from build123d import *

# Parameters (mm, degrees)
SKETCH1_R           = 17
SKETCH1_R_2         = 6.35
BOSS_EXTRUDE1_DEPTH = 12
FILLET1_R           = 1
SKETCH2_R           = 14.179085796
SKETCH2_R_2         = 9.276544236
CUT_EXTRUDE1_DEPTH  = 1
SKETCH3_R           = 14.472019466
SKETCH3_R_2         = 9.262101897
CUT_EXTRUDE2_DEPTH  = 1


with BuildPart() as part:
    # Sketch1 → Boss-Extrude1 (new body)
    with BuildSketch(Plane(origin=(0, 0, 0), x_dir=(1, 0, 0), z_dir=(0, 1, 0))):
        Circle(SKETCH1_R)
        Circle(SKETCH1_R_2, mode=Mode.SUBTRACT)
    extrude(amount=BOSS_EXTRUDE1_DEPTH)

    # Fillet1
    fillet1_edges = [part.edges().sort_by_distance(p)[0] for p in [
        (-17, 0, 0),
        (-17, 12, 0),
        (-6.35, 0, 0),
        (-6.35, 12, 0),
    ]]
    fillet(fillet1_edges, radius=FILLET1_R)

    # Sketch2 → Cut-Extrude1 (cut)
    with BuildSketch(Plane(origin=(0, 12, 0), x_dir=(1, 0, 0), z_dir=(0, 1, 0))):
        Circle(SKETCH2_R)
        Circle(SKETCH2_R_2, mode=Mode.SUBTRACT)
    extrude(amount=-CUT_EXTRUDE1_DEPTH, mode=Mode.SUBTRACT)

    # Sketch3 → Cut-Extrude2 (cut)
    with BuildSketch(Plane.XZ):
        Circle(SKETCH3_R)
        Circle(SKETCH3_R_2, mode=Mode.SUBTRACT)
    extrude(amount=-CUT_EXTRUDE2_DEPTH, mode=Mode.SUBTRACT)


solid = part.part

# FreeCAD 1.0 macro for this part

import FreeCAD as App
import Part
import Sketcher
from FreeCAD import Vector


def edges_at(feature, points):
    """Names of the edges that pass closest to the given points."""
    edges = feature.Shape.Edges
    near = lambda p: min(range(len(edges)), key=lambda i: edges[i].distToShape(Part.Vertex(*p))[0])
    return sorted({f"Edge{near(p) + 1}" for p in points})

doc = App.newDocument("Part")
body = doc.addObject("PartDesign::Body", "Body")

# Sketch on XZ plane
sketch1 = body.newObject("Sketcher::SketchObject", "Sketch")
sketch1.AttachmentSupport = (doc.getObject("XZ_Plane"), [""])
sketch1.MapMode = "FlatFace"
sketch1.addGeometry(Part.Circle(Vector(0, 0, 0), Vector(0, 0, 1), 17), False)
sketch1.addGeometry(Part.Circle(Vector(0, 0, 0), Vector(0, 0, 1), 6), False)
sketch1.addConstraint(Sketcher.Constraint("Coincident", 0, 3, -1, 1))
sketch1.addConstraint(Sketcher.Constraint("Coincident", 1, 3, -1, 1))
sketch1.addConstraint(Sketcher.Constraint("Diameter", 0, 34.0))
sketch1.addConstraint(Sketcher.Constraint("Diameter", 1, 12.7))
pad1 = body.newObject("PartDesign::Pad", "Pad")
pad1.Profile = sketch1
pad1.Length = 12
pad1.Reversed = True
doc.recompute()

fillet = body.newObject("PartDesign::Fillet", "Fillet")
fillet.Base = (pad1, edges_at(pad1, [
    (-17, 0, 0),
    (-17, 12, 0),
    (-6.35, 0, 0),
    (-6.35, 12, 0),
]))
fillet.Radius = 1

# Sketch on XZ plane
sketch2 = body.newObject("Sketcher::SketchObject", "Sketch001")
sketch2.AttachmentSupport = (doc.getObject("XZ_Plane"), [""])
sketch2.MapMode = "FlatFace"
sketch2.AttachmentOffset = App.Placement(Vector(0, 0, -12), App.Rotation())
sketch2.addGeometry(Part.Circle(Vector(0, 0, 0), Vector(0, 0, 1), 14), False)
sketch2.addGeometry(Part.Circle(Vector(0, 0, 0), Vector(0, 0, 1), 9), False)
sketch2.addConstraint(Sketcher.Constraint("Coincident", 0, 3, -1, 1))
sketch2.addConstraint(Sketcher.Constraint("Coincident", 1, 3, -1, 1))
sketch2.addConstraint(Sketcher.Constraint("Diameter", 0, 28.358172))
sketch2.addConstraint(Sketcher.Constraint("Diameter", 1, 18.553088))
pocket1 = body.newObject("PartDesign::Pocket", "Pocket")
pocket1.Profile = sketch2
pocket1.Length = 1
pocket1.Reversed = True

# Sketch on XZ plane
sketch3 = body.newObject("Sketcher::SketchObject", "Sketch002")
sketch3.AttachmentSupport = (doc.getObject("XZ_Plane"), [""])
sketch3.MapMode = "FlatFace"
sketch3.addGeometry(Part.Circle(Vector(0, 0, 0), Vector(0, 0, 1), 14), False)
sketch3.addGeometry(Part.Circle(Vector(0, 0, 0), Vector(0, 0, 1), 9), False)
sketch3.addConstraint(Sketcher.Constraint("Coincident", 0, 3, -1, 1))
sketch3.addConstraint(Sketcher.Constraint("Coincident", 1, 3, -1, 1))
sketch3.addConstraint(Sketcher.Constraint("Diameter", 0, 28.944039))
sketch3.addConstraint(Sketcher.Constraint("Diameter", 1, 18.524204))
pocket2 = body.newObject("PartDesign::Pocket", "Pocket001")
pocket2.Profile = sketch3
pocket2.Length = 1

doc.recompute()
